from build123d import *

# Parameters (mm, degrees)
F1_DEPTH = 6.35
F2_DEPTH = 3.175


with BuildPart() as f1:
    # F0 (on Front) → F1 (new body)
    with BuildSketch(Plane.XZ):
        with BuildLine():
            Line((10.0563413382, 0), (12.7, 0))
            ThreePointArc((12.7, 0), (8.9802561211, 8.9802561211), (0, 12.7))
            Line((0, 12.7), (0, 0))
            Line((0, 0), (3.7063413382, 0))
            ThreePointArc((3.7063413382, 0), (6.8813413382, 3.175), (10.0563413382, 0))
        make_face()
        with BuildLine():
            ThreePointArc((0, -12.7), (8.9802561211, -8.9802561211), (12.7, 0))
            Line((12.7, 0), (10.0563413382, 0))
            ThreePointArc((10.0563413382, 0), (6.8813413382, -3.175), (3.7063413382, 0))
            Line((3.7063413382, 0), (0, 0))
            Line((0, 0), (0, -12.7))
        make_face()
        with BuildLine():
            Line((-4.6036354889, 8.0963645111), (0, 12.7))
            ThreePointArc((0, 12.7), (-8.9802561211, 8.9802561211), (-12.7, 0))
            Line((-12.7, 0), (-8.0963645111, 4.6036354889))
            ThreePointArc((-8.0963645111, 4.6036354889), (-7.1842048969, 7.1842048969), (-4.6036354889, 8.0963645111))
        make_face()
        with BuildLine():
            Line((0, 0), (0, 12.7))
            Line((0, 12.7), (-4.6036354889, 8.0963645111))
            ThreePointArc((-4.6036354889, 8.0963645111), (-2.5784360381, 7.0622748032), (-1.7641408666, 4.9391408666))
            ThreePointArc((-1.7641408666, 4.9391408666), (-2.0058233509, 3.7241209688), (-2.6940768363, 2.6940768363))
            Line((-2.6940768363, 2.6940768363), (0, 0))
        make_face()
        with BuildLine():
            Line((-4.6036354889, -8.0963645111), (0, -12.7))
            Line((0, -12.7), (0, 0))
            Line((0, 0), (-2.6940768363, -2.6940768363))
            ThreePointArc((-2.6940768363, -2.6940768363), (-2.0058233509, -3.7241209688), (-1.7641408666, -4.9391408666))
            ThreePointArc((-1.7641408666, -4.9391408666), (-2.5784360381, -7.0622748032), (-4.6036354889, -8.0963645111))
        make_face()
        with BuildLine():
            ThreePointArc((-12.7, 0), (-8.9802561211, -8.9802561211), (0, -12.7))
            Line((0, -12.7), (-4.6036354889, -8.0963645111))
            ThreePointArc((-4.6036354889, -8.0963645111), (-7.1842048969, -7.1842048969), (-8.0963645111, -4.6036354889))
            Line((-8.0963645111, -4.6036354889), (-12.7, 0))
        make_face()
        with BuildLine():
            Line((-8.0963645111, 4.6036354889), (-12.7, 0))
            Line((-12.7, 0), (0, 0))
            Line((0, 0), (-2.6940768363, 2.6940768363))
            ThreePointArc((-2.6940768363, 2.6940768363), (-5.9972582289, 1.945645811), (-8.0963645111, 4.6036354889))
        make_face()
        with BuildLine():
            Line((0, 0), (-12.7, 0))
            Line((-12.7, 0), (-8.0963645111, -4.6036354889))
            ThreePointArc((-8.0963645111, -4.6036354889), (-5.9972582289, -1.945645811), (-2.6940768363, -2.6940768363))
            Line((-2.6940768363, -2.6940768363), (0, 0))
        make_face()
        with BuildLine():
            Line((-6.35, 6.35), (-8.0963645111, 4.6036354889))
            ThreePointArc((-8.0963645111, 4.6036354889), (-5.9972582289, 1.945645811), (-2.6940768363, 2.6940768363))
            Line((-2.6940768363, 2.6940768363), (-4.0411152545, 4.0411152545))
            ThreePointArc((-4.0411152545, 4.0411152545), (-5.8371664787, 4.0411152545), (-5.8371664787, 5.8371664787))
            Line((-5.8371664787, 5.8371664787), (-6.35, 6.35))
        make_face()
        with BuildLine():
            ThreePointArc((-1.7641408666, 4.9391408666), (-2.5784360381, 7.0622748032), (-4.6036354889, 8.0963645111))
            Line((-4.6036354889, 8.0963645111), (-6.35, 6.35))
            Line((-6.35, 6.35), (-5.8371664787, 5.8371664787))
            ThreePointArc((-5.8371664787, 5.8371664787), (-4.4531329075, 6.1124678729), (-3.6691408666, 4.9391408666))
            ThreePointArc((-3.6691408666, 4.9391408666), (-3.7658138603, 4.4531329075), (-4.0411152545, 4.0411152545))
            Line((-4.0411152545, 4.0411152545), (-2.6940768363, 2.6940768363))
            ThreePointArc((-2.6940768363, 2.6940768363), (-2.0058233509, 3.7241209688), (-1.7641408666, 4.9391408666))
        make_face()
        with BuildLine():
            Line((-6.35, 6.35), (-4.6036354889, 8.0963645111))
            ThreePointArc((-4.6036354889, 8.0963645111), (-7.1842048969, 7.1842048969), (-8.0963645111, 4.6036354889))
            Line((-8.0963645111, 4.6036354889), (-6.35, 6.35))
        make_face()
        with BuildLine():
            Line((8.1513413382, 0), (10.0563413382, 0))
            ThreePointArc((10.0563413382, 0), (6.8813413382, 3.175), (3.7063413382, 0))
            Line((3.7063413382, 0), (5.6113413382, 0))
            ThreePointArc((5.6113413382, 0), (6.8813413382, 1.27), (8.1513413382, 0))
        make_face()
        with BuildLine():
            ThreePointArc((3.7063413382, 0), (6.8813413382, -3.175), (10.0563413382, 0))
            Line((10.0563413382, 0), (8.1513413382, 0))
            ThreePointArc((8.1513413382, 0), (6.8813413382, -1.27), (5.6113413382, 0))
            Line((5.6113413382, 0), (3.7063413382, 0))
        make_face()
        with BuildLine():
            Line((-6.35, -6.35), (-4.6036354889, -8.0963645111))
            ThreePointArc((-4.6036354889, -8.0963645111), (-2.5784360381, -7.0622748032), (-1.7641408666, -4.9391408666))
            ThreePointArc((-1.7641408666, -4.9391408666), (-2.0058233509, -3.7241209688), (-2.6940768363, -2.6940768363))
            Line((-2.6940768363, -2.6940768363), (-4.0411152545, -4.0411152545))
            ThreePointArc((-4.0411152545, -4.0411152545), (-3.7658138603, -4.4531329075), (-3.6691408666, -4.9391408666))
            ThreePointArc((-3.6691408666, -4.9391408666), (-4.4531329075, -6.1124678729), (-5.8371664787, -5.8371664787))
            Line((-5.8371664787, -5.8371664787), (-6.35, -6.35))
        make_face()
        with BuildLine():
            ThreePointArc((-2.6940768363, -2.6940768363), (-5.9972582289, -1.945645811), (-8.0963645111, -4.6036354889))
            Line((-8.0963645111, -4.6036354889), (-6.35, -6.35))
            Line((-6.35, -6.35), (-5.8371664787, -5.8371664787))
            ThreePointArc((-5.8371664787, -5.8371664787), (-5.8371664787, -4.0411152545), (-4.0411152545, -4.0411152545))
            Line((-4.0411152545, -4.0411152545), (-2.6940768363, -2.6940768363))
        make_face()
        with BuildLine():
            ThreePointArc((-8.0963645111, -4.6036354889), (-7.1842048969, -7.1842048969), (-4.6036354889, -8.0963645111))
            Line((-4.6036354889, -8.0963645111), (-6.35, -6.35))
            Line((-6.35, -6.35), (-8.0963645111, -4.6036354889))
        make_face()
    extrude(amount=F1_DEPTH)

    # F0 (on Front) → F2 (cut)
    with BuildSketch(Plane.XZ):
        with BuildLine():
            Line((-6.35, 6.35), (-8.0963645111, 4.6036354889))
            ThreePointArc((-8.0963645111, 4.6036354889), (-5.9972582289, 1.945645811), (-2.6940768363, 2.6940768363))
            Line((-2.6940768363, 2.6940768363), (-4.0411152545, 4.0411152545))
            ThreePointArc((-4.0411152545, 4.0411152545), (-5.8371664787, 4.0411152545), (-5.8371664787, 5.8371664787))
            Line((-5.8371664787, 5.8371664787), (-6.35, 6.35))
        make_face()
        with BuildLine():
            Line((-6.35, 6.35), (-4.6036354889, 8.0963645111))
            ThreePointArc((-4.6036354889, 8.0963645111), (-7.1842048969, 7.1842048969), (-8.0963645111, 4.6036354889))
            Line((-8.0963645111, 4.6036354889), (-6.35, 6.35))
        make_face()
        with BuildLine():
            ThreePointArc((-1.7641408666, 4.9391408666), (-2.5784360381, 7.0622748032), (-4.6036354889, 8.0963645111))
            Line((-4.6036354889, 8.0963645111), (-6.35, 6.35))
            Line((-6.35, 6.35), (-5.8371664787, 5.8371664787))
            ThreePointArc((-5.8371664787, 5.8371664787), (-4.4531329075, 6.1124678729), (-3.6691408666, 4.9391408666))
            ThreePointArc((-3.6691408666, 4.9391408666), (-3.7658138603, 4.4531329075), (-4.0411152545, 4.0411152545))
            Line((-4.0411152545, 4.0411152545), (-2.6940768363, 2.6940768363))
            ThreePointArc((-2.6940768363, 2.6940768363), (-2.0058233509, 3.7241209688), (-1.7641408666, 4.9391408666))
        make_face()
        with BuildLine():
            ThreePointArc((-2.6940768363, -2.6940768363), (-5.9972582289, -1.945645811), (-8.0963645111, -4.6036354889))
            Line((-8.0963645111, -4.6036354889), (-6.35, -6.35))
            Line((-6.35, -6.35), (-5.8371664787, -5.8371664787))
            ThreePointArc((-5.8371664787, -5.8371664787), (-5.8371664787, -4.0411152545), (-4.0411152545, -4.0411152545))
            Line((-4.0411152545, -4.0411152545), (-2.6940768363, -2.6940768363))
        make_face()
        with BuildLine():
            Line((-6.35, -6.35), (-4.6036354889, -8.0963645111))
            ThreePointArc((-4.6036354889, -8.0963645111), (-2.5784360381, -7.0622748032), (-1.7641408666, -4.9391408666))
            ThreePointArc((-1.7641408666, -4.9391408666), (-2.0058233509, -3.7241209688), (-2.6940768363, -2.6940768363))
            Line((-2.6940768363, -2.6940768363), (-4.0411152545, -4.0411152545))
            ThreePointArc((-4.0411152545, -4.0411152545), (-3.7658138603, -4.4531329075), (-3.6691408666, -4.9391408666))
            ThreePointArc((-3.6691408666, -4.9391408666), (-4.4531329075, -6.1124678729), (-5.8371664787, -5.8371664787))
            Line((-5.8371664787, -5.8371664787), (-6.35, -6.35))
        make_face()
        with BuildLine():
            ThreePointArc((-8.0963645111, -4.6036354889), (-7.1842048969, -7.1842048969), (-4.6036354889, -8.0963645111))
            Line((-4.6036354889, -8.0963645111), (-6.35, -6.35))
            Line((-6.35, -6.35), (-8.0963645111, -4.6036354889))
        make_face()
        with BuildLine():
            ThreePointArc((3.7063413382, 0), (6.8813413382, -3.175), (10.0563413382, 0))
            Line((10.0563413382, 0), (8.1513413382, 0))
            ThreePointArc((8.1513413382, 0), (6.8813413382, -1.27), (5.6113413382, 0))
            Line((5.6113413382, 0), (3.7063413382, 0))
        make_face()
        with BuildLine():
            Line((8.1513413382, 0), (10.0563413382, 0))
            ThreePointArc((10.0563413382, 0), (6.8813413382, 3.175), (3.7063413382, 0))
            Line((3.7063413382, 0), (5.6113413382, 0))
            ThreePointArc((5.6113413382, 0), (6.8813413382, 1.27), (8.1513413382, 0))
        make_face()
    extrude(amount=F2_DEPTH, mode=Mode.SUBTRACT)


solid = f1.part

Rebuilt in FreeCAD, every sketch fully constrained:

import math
import FreeCAD as App
import Part
import Sketcher
Q = App.Units.Quantity

doc = App.newDocument("Part")
body = doc.addObject("PartDesign::Body", "Body")

# Sketch on XZ plane
sketch1 = doc.addObject("Sketcher::SketchObject", "Sketch")
body.addObject(sketch1)
sketch1.AttachmentSupport = (doc.XZ_Plane, [""])
sketch1.MapMode = "FlatFace"
sketch1.addGeometry([
    Part.ArcOfCircle(Part.Circle(App.Vector(0, 0, 0), App.Vector(0, 0, 1), 12.7), math.radians(90), math.radians(180)),  # 0
    Part.ArcOfCircle(Part.Circle(App.Vector(0, 0, 0), App.Vector(0, 0, 1), 12.7), math.radians(180), math.radians(270)),  # 1
    Part.ArcOfCircle(Part.Circle(App.Vector(0, 0, 0), App.Vector(0, 0, 1), 12.7), math.radians(-90), math.radians(0)),  # 2
    Part.ArcOfCircle(Part.Circle(App.Vector(0, 0, 0), App.Vector(0, 0, 1), 12.7), math.radians(0), math.radians(90)),  # 3
    Part.ArcOfCircle(Part.Circle(App.Vector(-4.9, -4.9, 0), App.Vector(0, 0, 1), 1.3), math.radians(0), math.radians(45)),  # 4
    Part.ArcOfCircle(Part.Circle(App.Vector(-4.9, -4.9, 0), App.Vector(0, 0, 1), 1.3), math.radians(-135), math.radians(0)),  # 5
    Part.ArcOfCircle(Part.Circle(App.Vector(-4.9, -4.9, 0), App.Vector(0, 0, 1), 1.3), math.radians(45), math.radians(225)),  # 6
    Part.ArcOfCircle(Part.Circle(App.Vector(-4.9, 4.9, 0), App.Vector(0, 0, 1), 1.3), math.radians(135), math.radians(315)),  # 7
    Part.ArcOfCircle(Part.Circle(App.Vector(-4.9, 4.9, 0), App.Vector(0, 0, 1), 1.3), math.radians(0), math.radians(135)),  # 8
    Part.ArcOfCircle(Part.Circle(App.Vector(-4.9, 4.9, 0), App.Vector(0, 0, 1), 1.3), math.radians(-45), math.radians(0)),  # 9
    Part.Circle(App.Vector(6.9, 0, 0), App.Vector(0, 0, 1), 1.3),  # 10
], False)
sketch1.addConstraint([
    Sketcher.Constraint("Tangent", 0, 2, 1, 1),
    Sketcher.Constraint("Tangent", 1, 2, 2, 1),
    Sketcher.Constraint("Tangent", 2, 2, 3, 1),
    Sketcher.Constraint("Tangent", 3, 2, 0, 1),
    Sketcher.Constraint("Tangent", 4, 1, 5, 2),
    Sketcher.Constraint("Tangent", 5, 1, 6, 2),
    Sketcher.Constraint("Tangent", 6, 1, 4, 2),
    Sketcher.Constraint("Tangent", 7, 1, 8, 2),
    Sketcher.Constraint("Tangent", 8, 1, 9, 2),
    Sketcher.Constraint("Tangent", 9, 1, 7, 2),
    Sketcher.Constraint("Coincident", 0, 3, -1, 1),
    Sketcher.Constraint("Equal", 0, 1),
    Sketcher.Constraint("Equal", 6, 7),
    Sketcher.Constraint("Equal", 9, 10),
    Sketcher.Constraint("Symmetric", 4, 3, 7, 3, -1),
    Sketcher.Constraint("PointOnObject", 10, 3, -1),
    Sketcher.Constraint("PointOnObject", 0, 2, -1),
    Sketcher.Constraint("PointOnObject", 1, 2, -2),
    Sketcher.Constraint("PointOnObject", 2, 2, -1),
    Sketcher.Constraint("PointOnObject", 3, 2, -2),
    Sketcher.Constraint("Horizontal", 6, 3, 4, 1),
    Sketcher.Constraint("Horizontal", 9, 3, 8, 1),
    Sketcher.Constraint("Vertical", 5, 1, 7, 1),
    Sketcher.Constraint("Vertical", 6, 1, 9, 1),
    Sketcher.Constraint("Diameter", 10, Q("0.1 in")),
    Sketcher.Constraint("Radius", 0, Q("0.5 in")),
    Sketcher.Constraint("DistanceX", 4, 3, -1, 1, Q("4.939141 mm")),
    Sketcher.Constraint("DistanceY", 4, 3, -1, 1, Q("4.939141 mm")),
    Sketcher.Constraint("DistanceX", -1, 1, 10, 3, Q("6.881341 mm")),
    Sketcher.Constraint("DistanceX", 5, 1, 6, 1, Q("1.796051 mm")),
    Sketcher.Constraint("DistanceX", 5, 1, -1, 1, Q("5.837166 mm")),
])
pad1 = doc.addObject("PartDesign::Pad", "Pad")
body.addObject(pad1)
pad1.Profile = sketch1
pad1.Length = Q("0.25 in")

# Sketch on XZ plane
sketch2 = doc.addObject("Sketcher::SketchObject", "Sketch001")
body.addObject(sketch2)
sketch2.AttachmentSupport = (doc.XZ_Plane, [""])
sketch2.MapMode = "FlatFace"
sketch2.addGeometry([
    Part.ArcOfCircle(Part.Circle(App.Vector(-4.9, 4.9, 0), App.Vector(0, 0, 1), 3.2), math.radians(-174), math.radians(-45)),  # 0
    Part.ArcOfCircle(Part.Circle(App.Vector(-4.9, 4.9, 0), App.Vector(0, 0, 1), 3.2), math.radians(-45), math.radians(0)),  # 1
    Part.ArcOfCircle(Part.Circle(App.Vector(-4.9, 4.9, 0), App.Vector(0, 0, 1), 3.2), math.radians(0), math.radians(84)),  # 2
    Part.ArcOfCircle(Part.Circle(App.Vector(-4.9, 4.9, 0), App.Vector(0, 0, 1), 3.2), math.radians(84), math.radians(186)),  # 3
    Part.ArcOfCircle(Part.Circle(App.Vector(-4.9, 4.9, 0), App.Vector(0, 0, 1), 1.3), math.radians(135), math.radians(315)),  # 4
    Part.ArcOfCircle(Part.Circle(App.Vector(-4.9, 4.9, 0), App.Vector(0, 0, 1), 1.3), math.radians(0), math.radians(135)),  # 5
    Part.ArcOfCircle(Part.Circle(App.Vector(-4.9, 4.9, 0), App.Vector(0, 0, 1), 1.3), math.radians(-45), math.radians(0)),  # 6
    Part.ArcOfCircle(Part.Circle(App.Vector(-4.9, -4.9, 0), App.Vector(0, 0, 1), 3.2), math.radians(45), math.radians(174)),  # 7
    Part.ArcOfCircle(Part.Circle(App.Vector(-4.9, -4.9, 0), App.Vector(0, 0, 1), 3.2), math.radians(174), math.radians(276)),  # 8
    Part.ArcOfCircle(Part.Circle(App.Vector(-4.9, -4.9, 0), App.Vector(0, 0, 1), 3.2), math.radians(-84), math.radians(0)),  # 9
    Part.ArcOfCircle(Part.Circle(App.Vector(-4.9, -4.9, 0), App.Vector(0, 0, 1), 3.2), math.radians(0), math.radians(45)),  # 10
    Part.ArcOfCircle(Part.Circle(App.Vector(-4.9, -4.9, 0), App.Vector(0, 0, 1), 1.3), math.radians(45), math.radians(225)),  # 11
    Part.ArcOfCircle(Part.Circle(App.Vector(-4.9, -4.9, 0), App.Vector(0, 0, 1), 1.3), math.radians(0), math.radians(45)),  # 12
    Part.ArcOfCircle(Part.Circle(App.Vector(-4.9, -4.9, 0), App.Vector(0, 0, 1), 1.3), math.radians(-135), math.radians(0)),  # 13
    Part.Circle(App.Vector(6.9, 0, 0), App.Vector(0, 0, 1), 3.2),  # 14
    Part.Circle(App.Vector(6.9, 0, 0), App.Vector(0, 0, 1), 1.3),  # 15
], False)
sketch2.addConstraint([
    Sketcher.Constraint("Tangent", 0, 2, 1, 1),
    Sketcher.Constraint("Tangent", 1, 2, 2, 1),
    Sketcher.Constraint("Tangent", 2, 2, 3, 1),
    Sketcher.Constraint("Tangent", 3, 2, 0, 1),
    Sketcher.Constraint("Tangent", 4, 1, 5, 2),
    Sketcher.Constraint("Tangent", 5, 1, 6, 2),
    Sketcher.Constraint("Tangent", 6, 1, 4, 2),
    Sketcher.Constraint("Tangent", 7, 2, 8, 1),
    Sketcher.Constraint("Tangent", 8, 2, 9, 1),
    Sketcher.Constraint("Tangent", 9, 2, 10, 1),
    Sketcher.Constraint("Tangent", 10, 2, 7, 1),
    Sketcher.Constraint("Tangent", 11, 1, 12, 2),
    Sketcher.Constraint("Tangent", 12, 1, 13, 2),
    Sketcher.Constraint("Tangent", 13, 1, 11, 2),
    Sketcher.Constraint("Coincident", 4, 3, 0, 3),
    Sketcher.Constraint("Coincident", 11, 3, 7, 3),
    Sketcher.Constraint("Coincident", 15, 3, 14, 3),
    Sketcher.Constraint("Equal", 0, 1),
    Sketcher.Constraint("Equal", 3, 7),
    Sketcher.Constraint("Equal", 7, 8),
    Sketcher.Constraint("Equal", 6, 11),
    Sketcher.Constraint("Equal", 10, 14),
    Sketcher.Constraint("Equal", 13, 15),
    Sketcher.Constraint("Symmetric", 0, 3, 7, 3, -1),
    Sketcher.Constraint("PointOnObject", 14, 3, -1),
    Sketcher.Constraint("Horizontal", 6, 3, 1, 2),
    Sketcher.Constraint("Horizontal", 1, 2, 5, 1),
    Sketcher.Constraint("Horizontal", 13, 3, 9, 2),
    Sketcher.Constraint("Horizontal", 9, 2, 12, 1),
    Sketcher.Constraint("Vertical", 3, 2, 7, 2),
    Sketcher.Constraint("Vertical", 2, 2, 8, 2),
    Sketcher.Constraint("Vertical", 0, 2, 10, 2),
    Sketcher.Constraint("Vertical", 6, 1, 11, 1),
    Sketcher.Constraint("Vertical", 4, 1, 13, 1),
    Sketcher.Constraint("Diameter", 15, Q("0.1 in")),
    Sketcher.Constraint("Diameter", 14, Q("0.25 in")),
    Sketcher.Constraint("DistanceY", 6, 3, 2, 2, Q("0.1243001 in")),
    Sketcher.Constraint("DistanceX", 3, 2, 0, 3, Q("0.1243001 in")),
    Sketcher.Constraint("DistanceX", 0, 3, -1, 1, Q("4.939141 mm")),
    Sketcher.Constraint("DistanceY", -1, 1, 0, 3, Q("4.939141 mm")),
    Sketcher.Constraint("DistanceX", -1, 1, 14, 3, Q("6.881341 mm")),
    Sketcher.Constraint("DistanceX", 0, 2, -1, 1, Q("2.694077 mm")),
    Sketcher.Constraint("DistanceX", 4, 1, -1, 1, Q("5.837166 mm")),
    Sketcher.Constraint("DistanceX", 6, 1, -1, 1, Q("4.041115 mm")),
])
pocket1 = doc.addObject("PartDesign::Pocket", "Pocket")
body.addObject(pocket1)
pocket1.Profile = sketch2
pocket1.Length = Q("0.125 in")
pocket1.Reversed = True

doc.recompute()
